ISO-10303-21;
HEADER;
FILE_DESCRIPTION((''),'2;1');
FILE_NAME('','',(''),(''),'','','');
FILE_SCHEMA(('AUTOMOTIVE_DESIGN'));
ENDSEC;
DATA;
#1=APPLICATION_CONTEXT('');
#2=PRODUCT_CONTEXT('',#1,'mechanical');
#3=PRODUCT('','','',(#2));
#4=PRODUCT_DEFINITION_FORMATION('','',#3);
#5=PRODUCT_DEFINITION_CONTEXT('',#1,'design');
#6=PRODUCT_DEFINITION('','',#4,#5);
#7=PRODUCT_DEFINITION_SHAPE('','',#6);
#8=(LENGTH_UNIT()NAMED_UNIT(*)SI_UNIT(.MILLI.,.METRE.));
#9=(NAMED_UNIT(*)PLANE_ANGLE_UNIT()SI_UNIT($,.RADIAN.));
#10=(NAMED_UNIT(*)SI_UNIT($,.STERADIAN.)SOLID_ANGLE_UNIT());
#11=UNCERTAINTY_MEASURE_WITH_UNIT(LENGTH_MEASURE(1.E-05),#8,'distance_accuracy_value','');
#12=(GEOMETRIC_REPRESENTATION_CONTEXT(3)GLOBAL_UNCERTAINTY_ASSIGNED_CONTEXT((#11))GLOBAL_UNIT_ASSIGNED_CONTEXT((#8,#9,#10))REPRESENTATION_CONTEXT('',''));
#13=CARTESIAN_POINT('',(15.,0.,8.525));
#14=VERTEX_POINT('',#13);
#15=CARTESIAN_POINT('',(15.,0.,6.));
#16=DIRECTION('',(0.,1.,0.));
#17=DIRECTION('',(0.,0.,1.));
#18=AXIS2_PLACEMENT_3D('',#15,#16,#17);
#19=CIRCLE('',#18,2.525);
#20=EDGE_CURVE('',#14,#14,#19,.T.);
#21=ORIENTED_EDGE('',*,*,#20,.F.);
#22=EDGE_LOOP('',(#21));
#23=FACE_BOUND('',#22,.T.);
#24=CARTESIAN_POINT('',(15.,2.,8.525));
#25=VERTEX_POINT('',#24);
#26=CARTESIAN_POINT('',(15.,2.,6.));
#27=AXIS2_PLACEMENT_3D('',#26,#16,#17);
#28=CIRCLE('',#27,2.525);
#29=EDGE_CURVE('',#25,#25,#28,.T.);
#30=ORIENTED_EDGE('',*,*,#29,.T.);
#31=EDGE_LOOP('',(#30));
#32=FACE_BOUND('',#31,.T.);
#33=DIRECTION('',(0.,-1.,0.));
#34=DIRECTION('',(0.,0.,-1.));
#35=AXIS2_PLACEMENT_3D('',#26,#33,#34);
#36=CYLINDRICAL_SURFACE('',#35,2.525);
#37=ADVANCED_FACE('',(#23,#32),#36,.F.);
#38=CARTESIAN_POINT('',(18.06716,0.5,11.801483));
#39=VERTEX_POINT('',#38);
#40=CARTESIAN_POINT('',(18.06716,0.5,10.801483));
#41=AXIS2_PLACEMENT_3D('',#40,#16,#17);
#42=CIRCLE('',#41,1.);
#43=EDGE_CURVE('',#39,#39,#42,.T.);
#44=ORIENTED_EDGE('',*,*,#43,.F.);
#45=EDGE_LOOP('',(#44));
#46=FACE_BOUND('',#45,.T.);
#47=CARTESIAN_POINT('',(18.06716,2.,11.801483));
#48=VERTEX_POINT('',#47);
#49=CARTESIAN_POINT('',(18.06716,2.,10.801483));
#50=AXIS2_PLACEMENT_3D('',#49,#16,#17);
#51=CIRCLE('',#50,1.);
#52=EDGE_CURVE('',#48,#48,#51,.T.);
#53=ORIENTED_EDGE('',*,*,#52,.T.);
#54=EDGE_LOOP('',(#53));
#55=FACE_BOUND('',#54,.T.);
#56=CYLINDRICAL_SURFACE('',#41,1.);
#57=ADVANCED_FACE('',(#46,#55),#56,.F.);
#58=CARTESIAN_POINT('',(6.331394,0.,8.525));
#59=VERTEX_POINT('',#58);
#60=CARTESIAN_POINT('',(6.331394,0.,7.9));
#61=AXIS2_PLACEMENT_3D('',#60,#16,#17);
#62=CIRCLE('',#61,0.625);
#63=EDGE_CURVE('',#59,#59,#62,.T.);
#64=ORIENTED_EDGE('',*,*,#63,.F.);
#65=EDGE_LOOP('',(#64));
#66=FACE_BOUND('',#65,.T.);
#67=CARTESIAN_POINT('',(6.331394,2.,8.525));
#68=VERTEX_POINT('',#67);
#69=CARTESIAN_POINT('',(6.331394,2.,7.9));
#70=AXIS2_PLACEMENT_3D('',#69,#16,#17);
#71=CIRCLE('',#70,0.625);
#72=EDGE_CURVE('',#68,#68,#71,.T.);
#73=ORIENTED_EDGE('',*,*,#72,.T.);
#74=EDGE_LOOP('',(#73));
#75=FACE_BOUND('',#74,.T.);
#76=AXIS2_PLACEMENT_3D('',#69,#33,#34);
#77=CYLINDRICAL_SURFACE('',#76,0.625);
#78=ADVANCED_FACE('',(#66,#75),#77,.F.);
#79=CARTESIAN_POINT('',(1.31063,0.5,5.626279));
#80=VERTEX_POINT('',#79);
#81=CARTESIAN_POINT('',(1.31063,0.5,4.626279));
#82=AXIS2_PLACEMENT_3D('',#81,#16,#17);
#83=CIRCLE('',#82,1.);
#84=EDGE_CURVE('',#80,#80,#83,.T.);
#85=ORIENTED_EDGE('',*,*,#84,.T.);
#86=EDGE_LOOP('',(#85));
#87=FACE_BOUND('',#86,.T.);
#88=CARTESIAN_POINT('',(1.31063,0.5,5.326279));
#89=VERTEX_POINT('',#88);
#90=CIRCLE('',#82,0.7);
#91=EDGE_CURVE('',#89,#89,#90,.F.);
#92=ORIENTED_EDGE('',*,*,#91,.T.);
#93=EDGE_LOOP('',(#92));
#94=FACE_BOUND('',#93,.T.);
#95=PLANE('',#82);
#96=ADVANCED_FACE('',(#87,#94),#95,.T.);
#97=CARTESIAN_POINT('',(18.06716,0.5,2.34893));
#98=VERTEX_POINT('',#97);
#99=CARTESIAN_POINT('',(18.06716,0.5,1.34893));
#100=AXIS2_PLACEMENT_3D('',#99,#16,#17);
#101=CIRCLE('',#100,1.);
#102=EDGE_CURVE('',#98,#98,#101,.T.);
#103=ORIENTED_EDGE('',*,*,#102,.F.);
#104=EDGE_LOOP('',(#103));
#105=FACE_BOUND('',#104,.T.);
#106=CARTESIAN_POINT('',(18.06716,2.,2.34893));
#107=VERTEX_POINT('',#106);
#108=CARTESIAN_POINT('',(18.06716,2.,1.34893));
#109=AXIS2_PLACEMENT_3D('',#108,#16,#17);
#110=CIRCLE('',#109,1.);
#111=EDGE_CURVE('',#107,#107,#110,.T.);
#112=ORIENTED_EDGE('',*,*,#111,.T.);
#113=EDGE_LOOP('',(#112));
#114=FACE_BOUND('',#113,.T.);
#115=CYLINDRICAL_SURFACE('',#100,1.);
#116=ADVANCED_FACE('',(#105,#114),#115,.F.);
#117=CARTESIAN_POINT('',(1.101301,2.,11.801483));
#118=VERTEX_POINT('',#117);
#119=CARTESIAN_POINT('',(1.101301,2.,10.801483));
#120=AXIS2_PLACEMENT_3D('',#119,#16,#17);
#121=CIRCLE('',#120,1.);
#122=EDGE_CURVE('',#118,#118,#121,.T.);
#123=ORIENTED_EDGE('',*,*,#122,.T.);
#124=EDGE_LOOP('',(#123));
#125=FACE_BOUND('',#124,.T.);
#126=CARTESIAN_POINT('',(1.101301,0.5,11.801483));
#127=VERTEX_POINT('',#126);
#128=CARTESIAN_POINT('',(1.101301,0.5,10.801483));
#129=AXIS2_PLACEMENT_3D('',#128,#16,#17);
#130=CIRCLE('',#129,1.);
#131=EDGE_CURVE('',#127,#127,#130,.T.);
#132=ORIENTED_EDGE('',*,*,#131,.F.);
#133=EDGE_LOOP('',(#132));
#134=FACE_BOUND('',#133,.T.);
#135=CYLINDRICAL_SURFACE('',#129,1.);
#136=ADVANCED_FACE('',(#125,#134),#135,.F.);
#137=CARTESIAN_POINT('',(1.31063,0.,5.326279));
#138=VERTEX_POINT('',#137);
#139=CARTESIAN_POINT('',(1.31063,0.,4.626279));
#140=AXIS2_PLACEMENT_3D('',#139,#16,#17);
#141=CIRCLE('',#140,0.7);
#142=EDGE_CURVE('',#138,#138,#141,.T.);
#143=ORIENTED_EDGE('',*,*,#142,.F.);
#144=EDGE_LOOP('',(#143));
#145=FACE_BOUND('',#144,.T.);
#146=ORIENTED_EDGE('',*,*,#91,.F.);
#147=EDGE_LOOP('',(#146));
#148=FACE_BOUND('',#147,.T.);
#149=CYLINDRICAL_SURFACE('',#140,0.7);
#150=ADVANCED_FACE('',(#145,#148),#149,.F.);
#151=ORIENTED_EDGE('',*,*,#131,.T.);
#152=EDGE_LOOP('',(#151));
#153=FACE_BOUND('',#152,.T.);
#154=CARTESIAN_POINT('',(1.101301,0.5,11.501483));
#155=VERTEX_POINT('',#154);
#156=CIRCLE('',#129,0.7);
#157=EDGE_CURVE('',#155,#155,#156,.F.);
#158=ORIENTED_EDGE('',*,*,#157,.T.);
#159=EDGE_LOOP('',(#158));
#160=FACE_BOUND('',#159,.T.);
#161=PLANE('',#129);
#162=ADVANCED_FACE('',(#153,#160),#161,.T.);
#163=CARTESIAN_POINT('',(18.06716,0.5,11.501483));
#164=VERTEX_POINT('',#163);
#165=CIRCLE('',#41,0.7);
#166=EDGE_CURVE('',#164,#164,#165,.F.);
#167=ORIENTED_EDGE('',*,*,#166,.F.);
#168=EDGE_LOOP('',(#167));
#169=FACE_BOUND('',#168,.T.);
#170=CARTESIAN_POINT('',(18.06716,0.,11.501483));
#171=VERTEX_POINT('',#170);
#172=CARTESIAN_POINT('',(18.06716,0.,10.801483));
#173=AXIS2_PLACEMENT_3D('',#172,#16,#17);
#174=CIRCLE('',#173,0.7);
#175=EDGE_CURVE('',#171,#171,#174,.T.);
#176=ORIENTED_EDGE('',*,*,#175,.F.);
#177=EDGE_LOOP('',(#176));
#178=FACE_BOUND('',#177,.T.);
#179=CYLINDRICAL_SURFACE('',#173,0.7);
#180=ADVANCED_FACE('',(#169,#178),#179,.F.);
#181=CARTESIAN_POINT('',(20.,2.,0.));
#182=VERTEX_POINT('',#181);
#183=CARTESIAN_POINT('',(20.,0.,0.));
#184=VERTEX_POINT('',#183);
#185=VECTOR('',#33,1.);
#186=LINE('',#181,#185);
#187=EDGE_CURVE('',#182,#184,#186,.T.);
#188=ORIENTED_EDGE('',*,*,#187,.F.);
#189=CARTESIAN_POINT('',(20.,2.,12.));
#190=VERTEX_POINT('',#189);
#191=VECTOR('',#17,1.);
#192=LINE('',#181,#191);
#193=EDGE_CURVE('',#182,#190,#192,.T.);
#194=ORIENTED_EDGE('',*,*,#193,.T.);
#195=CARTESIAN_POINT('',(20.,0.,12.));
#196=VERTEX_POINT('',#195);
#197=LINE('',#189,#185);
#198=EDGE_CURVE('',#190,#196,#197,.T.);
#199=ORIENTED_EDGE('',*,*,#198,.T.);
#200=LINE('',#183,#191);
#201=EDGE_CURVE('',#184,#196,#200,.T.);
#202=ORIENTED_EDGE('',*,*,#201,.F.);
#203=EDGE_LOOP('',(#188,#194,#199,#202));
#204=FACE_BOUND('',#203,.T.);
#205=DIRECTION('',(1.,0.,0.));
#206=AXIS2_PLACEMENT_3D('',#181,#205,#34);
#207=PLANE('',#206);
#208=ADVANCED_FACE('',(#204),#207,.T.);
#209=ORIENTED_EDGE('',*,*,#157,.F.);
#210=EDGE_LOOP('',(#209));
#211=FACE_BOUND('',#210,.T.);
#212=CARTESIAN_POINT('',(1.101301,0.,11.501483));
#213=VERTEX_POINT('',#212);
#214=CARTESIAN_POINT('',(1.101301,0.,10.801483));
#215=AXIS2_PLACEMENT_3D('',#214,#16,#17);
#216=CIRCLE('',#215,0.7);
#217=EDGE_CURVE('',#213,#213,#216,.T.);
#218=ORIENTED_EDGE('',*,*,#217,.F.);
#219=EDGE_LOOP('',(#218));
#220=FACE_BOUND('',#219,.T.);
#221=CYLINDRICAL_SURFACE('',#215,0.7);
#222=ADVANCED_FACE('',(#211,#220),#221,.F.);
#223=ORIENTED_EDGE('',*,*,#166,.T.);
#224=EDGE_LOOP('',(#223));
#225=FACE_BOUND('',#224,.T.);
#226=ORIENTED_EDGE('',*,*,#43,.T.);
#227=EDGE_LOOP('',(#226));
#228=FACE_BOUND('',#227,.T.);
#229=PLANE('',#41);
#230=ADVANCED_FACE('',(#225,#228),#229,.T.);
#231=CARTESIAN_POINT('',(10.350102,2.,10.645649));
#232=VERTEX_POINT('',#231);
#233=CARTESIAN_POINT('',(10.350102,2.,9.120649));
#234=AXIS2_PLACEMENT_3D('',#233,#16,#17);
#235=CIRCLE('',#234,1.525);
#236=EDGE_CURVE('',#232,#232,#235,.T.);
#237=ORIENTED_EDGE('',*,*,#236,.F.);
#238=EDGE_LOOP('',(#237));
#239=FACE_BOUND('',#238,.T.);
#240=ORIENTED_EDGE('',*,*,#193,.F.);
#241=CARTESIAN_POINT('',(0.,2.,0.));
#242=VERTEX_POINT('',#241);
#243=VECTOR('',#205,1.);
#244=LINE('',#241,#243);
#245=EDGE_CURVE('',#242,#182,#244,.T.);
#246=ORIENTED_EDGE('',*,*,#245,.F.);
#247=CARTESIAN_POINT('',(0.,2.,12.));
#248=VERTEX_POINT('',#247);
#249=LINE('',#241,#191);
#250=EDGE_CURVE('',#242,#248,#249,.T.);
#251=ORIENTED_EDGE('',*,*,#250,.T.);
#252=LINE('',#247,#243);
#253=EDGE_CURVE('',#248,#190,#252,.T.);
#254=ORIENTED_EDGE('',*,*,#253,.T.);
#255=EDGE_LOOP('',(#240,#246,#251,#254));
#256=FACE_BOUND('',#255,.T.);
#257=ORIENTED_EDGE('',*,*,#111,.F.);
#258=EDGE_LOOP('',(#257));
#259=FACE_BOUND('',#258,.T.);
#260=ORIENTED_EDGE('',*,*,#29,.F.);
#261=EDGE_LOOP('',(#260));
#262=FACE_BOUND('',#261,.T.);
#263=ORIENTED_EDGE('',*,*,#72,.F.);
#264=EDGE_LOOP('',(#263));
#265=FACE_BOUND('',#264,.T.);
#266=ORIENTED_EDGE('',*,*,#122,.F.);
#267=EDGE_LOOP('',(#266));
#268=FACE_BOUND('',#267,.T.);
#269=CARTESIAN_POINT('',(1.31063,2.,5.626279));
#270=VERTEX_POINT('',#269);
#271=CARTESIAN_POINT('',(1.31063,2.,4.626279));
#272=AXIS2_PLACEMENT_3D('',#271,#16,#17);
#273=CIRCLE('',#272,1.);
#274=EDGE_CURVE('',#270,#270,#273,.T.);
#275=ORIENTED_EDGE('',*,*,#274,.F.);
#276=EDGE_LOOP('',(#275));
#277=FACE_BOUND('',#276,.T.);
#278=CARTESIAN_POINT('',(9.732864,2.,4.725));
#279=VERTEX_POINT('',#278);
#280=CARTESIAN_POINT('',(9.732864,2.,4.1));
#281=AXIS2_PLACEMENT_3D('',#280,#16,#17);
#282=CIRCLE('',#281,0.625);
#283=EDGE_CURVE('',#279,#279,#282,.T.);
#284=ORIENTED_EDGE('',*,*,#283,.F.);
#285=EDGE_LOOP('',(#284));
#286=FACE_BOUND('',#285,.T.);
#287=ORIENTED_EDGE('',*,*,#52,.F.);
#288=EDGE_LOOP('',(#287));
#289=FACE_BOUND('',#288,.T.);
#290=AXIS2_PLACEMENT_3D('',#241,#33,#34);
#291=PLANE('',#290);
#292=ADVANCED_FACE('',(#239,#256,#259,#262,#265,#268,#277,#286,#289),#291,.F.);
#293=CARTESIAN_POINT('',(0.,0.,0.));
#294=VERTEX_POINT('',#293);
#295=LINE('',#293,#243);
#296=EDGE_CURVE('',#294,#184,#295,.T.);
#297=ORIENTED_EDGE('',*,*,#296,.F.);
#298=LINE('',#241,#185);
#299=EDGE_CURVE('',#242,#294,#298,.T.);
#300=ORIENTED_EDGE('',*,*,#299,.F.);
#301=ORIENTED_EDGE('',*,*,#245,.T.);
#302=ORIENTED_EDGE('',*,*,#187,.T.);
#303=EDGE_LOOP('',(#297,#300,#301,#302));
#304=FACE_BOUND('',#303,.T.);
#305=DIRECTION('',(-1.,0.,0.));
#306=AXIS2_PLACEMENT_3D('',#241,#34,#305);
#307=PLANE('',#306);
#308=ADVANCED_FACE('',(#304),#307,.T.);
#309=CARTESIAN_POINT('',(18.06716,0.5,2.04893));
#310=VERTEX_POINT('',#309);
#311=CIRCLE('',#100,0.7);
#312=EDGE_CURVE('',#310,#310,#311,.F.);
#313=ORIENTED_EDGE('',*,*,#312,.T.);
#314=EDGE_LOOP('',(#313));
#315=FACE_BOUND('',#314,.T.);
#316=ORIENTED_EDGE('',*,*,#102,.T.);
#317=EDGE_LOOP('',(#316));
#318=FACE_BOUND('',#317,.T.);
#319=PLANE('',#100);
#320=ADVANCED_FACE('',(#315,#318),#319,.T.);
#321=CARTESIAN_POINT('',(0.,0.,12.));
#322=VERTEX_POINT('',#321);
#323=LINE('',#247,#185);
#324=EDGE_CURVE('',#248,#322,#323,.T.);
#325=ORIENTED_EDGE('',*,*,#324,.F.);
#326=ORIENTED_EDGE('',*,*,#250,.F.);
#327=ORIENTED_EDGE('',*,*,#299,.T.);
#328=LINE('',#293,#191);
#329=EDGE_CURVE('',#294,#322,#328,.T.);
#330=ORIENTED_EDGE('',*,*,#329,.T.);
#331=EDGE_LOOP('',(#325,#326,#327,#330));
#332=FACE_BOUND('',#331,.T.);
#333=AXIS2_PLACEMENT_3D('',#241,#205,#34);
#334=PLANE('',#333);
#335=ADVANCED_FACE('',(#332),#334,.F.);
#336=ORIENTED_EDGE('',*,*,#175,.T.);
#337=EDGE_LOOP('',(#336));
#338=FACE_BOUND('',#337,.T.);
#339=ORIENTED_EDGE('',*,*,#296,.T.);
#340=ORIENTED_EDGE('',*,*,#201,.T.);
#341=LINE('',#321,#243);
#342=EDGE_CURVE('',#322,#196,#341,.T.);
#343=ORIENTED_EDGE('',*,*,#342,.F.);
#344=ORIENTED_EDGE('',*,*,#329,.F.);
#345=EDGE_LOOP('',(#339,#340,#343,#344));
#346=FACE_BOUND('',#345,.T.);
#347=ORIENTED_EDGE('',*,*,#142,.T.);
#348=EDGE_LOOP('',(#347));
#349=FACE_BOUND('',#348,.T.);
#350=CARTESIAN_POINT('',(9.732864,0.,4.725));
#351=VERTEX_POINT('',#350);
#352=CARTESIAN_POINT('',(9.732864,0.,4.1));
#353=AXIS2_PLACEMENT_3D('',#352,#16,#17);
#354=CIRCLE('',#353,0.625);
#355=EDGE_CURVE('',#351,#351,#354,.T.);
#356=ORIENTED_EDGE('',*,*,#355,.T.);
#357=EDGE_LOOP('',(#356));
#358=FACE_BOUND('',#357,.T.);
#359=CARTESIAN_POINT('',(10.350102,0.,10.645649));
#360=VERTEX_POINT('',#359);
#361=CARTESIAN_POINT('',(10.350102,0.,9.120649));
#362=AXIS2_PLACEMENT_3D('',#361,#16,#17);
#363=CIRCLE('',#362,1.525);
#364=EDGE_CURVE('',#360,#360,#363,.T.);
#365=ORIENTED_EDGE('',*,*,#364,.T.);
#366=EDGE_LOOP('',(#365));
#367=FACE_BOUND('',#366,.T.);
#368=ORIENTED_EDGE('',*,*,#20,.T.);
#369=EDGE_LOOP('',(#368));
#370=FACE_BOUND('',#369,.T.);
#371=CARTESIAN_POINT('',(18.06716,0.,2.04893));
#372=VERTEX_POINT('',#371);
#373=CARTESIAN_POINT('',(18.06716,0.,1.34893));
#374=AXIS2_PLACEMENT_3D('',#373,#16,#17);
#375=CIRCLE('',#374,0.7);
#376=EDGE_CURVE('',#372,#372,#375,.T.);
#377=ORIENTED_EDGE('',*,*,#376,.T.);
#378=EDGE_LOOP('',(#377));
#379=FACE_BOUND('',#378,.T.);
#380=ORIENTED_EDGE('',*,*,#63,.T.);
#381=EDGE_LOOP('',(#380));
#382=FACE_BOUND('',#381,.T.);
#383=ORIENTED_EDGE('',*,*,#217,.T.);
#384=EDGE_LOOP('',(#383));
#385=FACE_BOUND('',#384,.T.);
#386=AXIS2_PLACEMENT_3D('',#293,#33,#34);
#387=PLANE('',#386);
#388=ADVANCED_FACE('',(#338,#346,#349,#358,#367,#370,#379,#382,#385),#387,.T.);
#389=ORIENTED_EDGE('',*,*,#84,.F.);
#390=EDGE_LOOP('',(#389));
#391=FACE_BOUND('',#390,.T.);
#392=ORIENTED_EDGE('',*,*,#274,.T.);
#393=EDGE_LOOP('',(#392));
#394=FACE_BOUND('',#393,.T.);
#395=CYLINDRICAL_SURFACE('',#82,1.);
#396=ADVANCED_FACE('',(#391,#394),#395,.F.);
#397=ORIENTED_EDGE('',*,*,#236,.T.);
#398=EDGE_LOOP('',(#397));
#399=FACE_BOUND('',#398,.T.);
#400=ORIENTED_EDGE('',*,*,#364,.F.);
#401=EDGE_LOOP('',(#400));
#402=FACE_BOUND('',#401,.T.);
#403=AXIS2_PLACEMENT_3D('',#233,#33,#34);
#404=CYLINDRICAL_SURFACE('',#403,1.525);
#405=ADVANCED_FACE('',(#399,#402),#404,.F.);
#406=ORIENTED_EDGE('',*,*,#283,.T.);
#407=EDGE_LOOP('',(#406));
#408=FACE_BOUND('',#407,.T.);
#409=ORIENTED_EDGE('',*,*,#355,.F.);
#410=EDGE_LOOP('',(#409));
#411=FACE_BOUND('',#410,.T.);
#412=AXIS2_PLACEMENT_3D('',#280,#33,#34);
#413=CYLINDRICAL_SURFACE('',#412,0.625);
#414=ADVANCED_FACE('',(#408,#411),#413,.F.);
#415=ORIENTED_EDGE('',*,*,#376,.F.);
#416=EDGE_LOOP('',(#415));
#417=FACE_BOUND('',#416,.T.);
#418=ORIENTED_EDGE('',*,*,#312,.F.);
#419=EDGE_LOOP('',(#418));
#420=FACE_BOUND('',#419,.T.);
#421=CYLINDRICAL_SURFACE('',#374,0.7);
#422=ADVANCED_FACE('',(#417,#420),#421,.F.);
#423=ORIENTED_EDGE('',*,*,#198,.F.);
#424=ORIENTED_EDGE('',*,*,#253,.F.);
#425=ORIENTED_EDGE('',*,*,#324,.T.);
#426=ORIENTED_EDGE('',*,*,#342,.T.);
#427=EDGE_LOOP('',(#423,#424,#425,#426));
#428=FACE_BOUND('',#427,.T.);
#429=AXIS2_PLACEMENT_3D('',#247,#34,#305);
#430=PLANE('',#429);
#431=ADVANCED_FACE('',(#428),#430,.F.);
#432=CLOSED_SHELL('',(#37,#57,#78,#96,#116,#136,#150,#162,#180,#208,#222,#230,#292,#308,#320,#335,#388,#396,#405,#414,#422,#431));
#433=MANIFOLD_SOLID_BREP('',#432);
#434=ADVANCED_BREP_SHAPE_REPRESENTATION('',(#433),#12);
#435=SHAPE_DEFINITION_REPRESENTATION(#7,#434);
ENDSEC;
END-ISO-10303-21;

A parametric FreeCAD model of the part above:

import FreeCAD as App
import Part
import Sketcher

V = App.Vector
Q = App.Units.Quantity

doc = App.newDocument("Part")
params = doc.addObject("Spreadsheet::Sheet", "Params")
for row, (alias, value) in enumerate([
    ("sketch1_diameter", "3.05 mm"),
    ("sketch1_diameter2", "1.25 mm"),
    ("sketch1_diameter3", "5.05 mm"),
    ("sketch1_width", "20 mm"),
    ("sketch1_height", "12 mm"),
    ("pad1_length", "2 mm"),
    ("sketch2_diameter", "1.4 mm"),
    ("sketch3_diameter", "2 mm"),
    ("pocket2_length", "1.5 mm"),
], start=1):
    params.set(f"A{row}", alias)
    params.set(f"B{row}", "=" + value)
    params.setAlias(f"B{row}", alias)

body = doc.addObject("PartDesign::Body", "Body")

sketch1 = body.newObject("Sketcher::SketchObject", "Sketch")
sketch1.AttachmentSupport = (doc.getObject("XZ_Plane"), [""])
sketch1.MapMode = "FlatFace"
sketch1.addGeometry(Part.LineSegment(V(0, 0, 0), V(0, 12, 0)), False)
sketch1.addGeometry(Part.LineSegment(V(0, 12, 0), V(20, 12, 0)), False)
sketch1.addGeometry(Part.LineSegment(V(20, 12, 0), V(20, 0, 0)), False)
sketch1.addGeometry(Part.LineSegment(V(20, 0, 0), V(0, 0, 0)), False)
sketch1.addGeometry(Part.Circle(V(10.4, 9.1, 0), V(0, 0, 1), 1.5), False)
sketch1.addGeometry(Part.Circle(V(6.3, 7.9, 0), V(0, 0, 1), 0.6), False)
sketch1.addGeometry(Part.Circle(V(9.7, 4.1, 0), V(0, 0, 1), 0.6), False)
sketch1.addGeometry(Part.Circle(V(15, 6, 0), V(0, 0, 1), 2.5), False)
sketch1.addConstraint(Sketcher.Constraint("Coincident", 0, 2, 1, 1))
sketch1.addConstraint(Sketcher.Constraint("Coincident", 1, 2, 2, 1))
sketch1.addConstraint(Sketcher.Constraint("Coincident", 2, 2, 3, 1))
sketch1.addConstraint(Sketcher.Constraint("Coincident", 3, 2, 0, 1))
sketch1.addConstraint(Sketcher.Constraint("Vertical", 0))
sketch1.addConstraint(Sketcher.Constraint("Horizontal", 1))
sketch1.addConstraint(Sketcher.Constraint("Vertical", 2))
sketch1.addConstraint(Sketcher.Constraint("Horizontal", 3))
sketch1.addConstraint(Sketcher.Constraint("Coincident", 3, 2, -1, 1))
sketch1.addConstraint(Sketcher.Constraint("Equal", 5, 6))
sketch1.addConstraint(Sketcher.Constraint("Diameter", 4, Q("3.05 mm")))
sketch1.addConstraint(Sketcher.Constraint("Diameter", 5, Q("1.25 mm")))
sketch1.addConstraint(Sketcher.Constraint("Diameter", 7, Q("5.05 mm")))
sketch1.addConstraint(Sketcher.Constraint("DistanceX", 1, 1, 1, 2, Q("20 mm")))
sketch1.addConstraint(Sketcher.Constraint("DistanceY", 0, 1, 0, 2, Q("12 mm")))
sketch1.addConstraint(Sketcher.Constraint("DistanceX", -1, 1, 7, 3, Q("15 mm")))
sketch1.addConstraint(Sketcher.Constraint("DistanceY", -1, 1, 7, 3, Q("6 mm")))
sketch1.addConstraint(Sketcher.Constraint("DistanceY", -1, 1, 5, 3, Q("7.9 mm")))
sketch1.addConstraint(Sketcher.Constraint("DistanceY", -1, 1, 6, 3, Q("4.1 mm")))
sketch1.addConstraint(Sketcher.Constraint("DistanceX", -1, 1, 4, 3, Q("10.350102 mm")))
sketch1.addConstraint(Sketcher.Constraint("DistanceY", -1, 1, 4, 3, Q("9.120649 mm")))
sketch1.addConstraint(Sketcher.Constraint("DistanceX", 5, 3, 4, 3, Q("4.018708 mm")))
sketch1.addConstraint(Sketcher.Constraint("DistanceX", 6, 3, 4, 3, Q("0.617238 mm")))
sketch1.setExpression("Constraints[10]", "Params.sketch1_diameter")
sketch1.setExpression("Constraints[11]", "Params.sketch1_diameter2")
sketch1.setExpression("Constraints[12]", "Params.sketch1_diameter3")
sketch1.setExpression("Constraints[13]", "Params.sketch1_width")
sketch1.setExpression("Constraints[14]", "Params.sketch1_height")
pad1 = body.newObject("PartDesign::Pad", "Pad")
pad1.Profile = sketch1
pad1.setExpression("Length", "Params.pad1_length")
pad1.Reversed = True

sketch2 = body.newObject("Sketcher::SketchObject", "Sketch001")
sketch2.AttachmentSupport = (doc.getObject("XZ_Plane"), [""])
sketch2.MapMode = "FlatFace"
sketch2.AttachmentOffset = App.Placement(V(0, 0, -2), App.Rotation())
sketch2.addGeometry(Part.Circle(V(1.1, 10.8, 0), V(0, 0, 1), 0.7), False)
sketch2.addGeometry(Part.Circle(V(1.3, 4.6, 0), V(0, 0, 1), 0.7), False)
sketch2.addGeometry(Part.Circle(V(18.1, 1.3, 0), V(0, 0, 1), 0.7), False)
sketch2.addGeometry(Part.Circle(V(18.1, 10.8, 0), V(0, 0, 1), 0.7), False)
sketch2.addConstraint(Sketcher.Constraint("Equal", 0, 1))
sketch2.addConstraint(Sketcher.Constraint("Equal", 1, 2))
sketch2.addConstraint(Sketcher.Constraint("Equal", 2, 3))
sketch2.addConstraint(Sketcher.Constraint("Horizontal", 0, 3, 3, 3))
sketch2.addConstraint(Sketcher.Constraint("Vertical", 2, 3, 3, 3))
sketch2.addConstraint(Sketcher.Constraint("Diameter", 0, Q("1.4 mm")))
sketch2.addConstraint(Sketcher.Constraint("DistanceX", -1, 1, 0, 3, Q("1.101301 mm")))
sketch2.addConstraint(Sketcher.Constraint("DistanceX", -1, 1, 1, 3, Q("1.31063 mm")))
sketch2.addConstraint(Sketcher.Constraint("DistanceY", -1, 1, 1, 3, Q("4.626279 mm")))
sketch2.addConstraint(Sketcher.Constraint("DistanceX", -1, 1, 2, 3, Q("18.06716 mm")))
sketch2.addConstraint(Sketcher.Constraint("DistanceY", -1, 1, 2, 3, Q("1.34893 mm")))
sketch2.addConstraint(Sketcher.Constraint("DistanceY", -1, 1, 0, 3, Q("10.801483 mm")))
sketch2.setExpression("Constraints[5]", "Params.sketch2_diameter")
pocket1 = body.newObject("PartDesign::Pocket", "Pocket")
pocket1.Profile = sketch2
pocket1.Type = "ThroughAll"
pocket1.Reversed = True

sketch3 = body.newObject("Sketcher::SketchObject", "Sketch002")
sketch3.AttachmentSupport = (doc.getObject("XZ_Plane"), [""])
sketch3.MapMode = "FlatFace"
sketch3.AttachmentOffset = App.Placement(V(0, 0, -2), App.Rotation())
sketch3.addGeometry(Part.Circle(V(1.3, 4.6, 0), V(0, 0, 1), 1), False)
sketch3.addGeometry(Part.Circle(V(1.1, 10.8, 0), V(0, 0, 1), 1), False)
sketch3.addGeometry(Part.Circle(V(18.1, 1.3, 0), V(0, 0, 1), 1), False)
sketch3.addGeometry(Part.Circle(V(18.1, 10.8, 0), V(0, 0, 1), 1), False)
sketch3.addConstraint(Sketcher.Constraint("Equal", 0, 1))
sketch3.addConstraint(Sketcher.Constraint("Equal", 1, 2))
sketch3.addConstraint(Sketcher.Constraint("Equal", 2, 3))
sketch3.addConstraint(Sketcher.Constraint("Horizontal", 1, 3, 3, 3))
sketch3.addConstraint(Sketcher.Constraint("Vertical", 2, 3, 3, 3))
sketch3.addConstraint(Sketcher.Constraint("Diameter", 0, Q("2 mm")))
sketch3.addConstraint(Sketcher.Constraint("DistanceX", -1, 1, 1, 3, Q("1.101301 mm")))
sketch3.addConstraint(Sketcher.Constraint("DistanceX", -1, 1, 0, 3, Q("1.31063 mm")))
sketch3.addConstraint(Sketcher.Constraint("DistanceY", -1, 1, 0, 3, Q("4.626279 mm")))
sketch3.addConstraint(Sketcher.Constraint("DistanceX", -1, 1, 2, 3, Q("18.06716 mm")))
sketch3.addConstraint(Sketcher.Constraint("DistanceY", -1, 1, 2, 3, Q("1.34893 mm")))
sketch3.addConstraint(Sketcher.Constraint("DistanceY", -1, 1, 1, 3, Q("10.801483 mm")))
sketch3.setExpression("Constraints[5]", "Params.sketch3_diameter")
pocket2 = body.newObject("PartDesign::Pocket", "Pocket001")
pocket2.Profile = sketch3
pocket2.setExpression("Length", "Params.pocket2_length")
pocket2.Reversed = True

doc.recompute()
